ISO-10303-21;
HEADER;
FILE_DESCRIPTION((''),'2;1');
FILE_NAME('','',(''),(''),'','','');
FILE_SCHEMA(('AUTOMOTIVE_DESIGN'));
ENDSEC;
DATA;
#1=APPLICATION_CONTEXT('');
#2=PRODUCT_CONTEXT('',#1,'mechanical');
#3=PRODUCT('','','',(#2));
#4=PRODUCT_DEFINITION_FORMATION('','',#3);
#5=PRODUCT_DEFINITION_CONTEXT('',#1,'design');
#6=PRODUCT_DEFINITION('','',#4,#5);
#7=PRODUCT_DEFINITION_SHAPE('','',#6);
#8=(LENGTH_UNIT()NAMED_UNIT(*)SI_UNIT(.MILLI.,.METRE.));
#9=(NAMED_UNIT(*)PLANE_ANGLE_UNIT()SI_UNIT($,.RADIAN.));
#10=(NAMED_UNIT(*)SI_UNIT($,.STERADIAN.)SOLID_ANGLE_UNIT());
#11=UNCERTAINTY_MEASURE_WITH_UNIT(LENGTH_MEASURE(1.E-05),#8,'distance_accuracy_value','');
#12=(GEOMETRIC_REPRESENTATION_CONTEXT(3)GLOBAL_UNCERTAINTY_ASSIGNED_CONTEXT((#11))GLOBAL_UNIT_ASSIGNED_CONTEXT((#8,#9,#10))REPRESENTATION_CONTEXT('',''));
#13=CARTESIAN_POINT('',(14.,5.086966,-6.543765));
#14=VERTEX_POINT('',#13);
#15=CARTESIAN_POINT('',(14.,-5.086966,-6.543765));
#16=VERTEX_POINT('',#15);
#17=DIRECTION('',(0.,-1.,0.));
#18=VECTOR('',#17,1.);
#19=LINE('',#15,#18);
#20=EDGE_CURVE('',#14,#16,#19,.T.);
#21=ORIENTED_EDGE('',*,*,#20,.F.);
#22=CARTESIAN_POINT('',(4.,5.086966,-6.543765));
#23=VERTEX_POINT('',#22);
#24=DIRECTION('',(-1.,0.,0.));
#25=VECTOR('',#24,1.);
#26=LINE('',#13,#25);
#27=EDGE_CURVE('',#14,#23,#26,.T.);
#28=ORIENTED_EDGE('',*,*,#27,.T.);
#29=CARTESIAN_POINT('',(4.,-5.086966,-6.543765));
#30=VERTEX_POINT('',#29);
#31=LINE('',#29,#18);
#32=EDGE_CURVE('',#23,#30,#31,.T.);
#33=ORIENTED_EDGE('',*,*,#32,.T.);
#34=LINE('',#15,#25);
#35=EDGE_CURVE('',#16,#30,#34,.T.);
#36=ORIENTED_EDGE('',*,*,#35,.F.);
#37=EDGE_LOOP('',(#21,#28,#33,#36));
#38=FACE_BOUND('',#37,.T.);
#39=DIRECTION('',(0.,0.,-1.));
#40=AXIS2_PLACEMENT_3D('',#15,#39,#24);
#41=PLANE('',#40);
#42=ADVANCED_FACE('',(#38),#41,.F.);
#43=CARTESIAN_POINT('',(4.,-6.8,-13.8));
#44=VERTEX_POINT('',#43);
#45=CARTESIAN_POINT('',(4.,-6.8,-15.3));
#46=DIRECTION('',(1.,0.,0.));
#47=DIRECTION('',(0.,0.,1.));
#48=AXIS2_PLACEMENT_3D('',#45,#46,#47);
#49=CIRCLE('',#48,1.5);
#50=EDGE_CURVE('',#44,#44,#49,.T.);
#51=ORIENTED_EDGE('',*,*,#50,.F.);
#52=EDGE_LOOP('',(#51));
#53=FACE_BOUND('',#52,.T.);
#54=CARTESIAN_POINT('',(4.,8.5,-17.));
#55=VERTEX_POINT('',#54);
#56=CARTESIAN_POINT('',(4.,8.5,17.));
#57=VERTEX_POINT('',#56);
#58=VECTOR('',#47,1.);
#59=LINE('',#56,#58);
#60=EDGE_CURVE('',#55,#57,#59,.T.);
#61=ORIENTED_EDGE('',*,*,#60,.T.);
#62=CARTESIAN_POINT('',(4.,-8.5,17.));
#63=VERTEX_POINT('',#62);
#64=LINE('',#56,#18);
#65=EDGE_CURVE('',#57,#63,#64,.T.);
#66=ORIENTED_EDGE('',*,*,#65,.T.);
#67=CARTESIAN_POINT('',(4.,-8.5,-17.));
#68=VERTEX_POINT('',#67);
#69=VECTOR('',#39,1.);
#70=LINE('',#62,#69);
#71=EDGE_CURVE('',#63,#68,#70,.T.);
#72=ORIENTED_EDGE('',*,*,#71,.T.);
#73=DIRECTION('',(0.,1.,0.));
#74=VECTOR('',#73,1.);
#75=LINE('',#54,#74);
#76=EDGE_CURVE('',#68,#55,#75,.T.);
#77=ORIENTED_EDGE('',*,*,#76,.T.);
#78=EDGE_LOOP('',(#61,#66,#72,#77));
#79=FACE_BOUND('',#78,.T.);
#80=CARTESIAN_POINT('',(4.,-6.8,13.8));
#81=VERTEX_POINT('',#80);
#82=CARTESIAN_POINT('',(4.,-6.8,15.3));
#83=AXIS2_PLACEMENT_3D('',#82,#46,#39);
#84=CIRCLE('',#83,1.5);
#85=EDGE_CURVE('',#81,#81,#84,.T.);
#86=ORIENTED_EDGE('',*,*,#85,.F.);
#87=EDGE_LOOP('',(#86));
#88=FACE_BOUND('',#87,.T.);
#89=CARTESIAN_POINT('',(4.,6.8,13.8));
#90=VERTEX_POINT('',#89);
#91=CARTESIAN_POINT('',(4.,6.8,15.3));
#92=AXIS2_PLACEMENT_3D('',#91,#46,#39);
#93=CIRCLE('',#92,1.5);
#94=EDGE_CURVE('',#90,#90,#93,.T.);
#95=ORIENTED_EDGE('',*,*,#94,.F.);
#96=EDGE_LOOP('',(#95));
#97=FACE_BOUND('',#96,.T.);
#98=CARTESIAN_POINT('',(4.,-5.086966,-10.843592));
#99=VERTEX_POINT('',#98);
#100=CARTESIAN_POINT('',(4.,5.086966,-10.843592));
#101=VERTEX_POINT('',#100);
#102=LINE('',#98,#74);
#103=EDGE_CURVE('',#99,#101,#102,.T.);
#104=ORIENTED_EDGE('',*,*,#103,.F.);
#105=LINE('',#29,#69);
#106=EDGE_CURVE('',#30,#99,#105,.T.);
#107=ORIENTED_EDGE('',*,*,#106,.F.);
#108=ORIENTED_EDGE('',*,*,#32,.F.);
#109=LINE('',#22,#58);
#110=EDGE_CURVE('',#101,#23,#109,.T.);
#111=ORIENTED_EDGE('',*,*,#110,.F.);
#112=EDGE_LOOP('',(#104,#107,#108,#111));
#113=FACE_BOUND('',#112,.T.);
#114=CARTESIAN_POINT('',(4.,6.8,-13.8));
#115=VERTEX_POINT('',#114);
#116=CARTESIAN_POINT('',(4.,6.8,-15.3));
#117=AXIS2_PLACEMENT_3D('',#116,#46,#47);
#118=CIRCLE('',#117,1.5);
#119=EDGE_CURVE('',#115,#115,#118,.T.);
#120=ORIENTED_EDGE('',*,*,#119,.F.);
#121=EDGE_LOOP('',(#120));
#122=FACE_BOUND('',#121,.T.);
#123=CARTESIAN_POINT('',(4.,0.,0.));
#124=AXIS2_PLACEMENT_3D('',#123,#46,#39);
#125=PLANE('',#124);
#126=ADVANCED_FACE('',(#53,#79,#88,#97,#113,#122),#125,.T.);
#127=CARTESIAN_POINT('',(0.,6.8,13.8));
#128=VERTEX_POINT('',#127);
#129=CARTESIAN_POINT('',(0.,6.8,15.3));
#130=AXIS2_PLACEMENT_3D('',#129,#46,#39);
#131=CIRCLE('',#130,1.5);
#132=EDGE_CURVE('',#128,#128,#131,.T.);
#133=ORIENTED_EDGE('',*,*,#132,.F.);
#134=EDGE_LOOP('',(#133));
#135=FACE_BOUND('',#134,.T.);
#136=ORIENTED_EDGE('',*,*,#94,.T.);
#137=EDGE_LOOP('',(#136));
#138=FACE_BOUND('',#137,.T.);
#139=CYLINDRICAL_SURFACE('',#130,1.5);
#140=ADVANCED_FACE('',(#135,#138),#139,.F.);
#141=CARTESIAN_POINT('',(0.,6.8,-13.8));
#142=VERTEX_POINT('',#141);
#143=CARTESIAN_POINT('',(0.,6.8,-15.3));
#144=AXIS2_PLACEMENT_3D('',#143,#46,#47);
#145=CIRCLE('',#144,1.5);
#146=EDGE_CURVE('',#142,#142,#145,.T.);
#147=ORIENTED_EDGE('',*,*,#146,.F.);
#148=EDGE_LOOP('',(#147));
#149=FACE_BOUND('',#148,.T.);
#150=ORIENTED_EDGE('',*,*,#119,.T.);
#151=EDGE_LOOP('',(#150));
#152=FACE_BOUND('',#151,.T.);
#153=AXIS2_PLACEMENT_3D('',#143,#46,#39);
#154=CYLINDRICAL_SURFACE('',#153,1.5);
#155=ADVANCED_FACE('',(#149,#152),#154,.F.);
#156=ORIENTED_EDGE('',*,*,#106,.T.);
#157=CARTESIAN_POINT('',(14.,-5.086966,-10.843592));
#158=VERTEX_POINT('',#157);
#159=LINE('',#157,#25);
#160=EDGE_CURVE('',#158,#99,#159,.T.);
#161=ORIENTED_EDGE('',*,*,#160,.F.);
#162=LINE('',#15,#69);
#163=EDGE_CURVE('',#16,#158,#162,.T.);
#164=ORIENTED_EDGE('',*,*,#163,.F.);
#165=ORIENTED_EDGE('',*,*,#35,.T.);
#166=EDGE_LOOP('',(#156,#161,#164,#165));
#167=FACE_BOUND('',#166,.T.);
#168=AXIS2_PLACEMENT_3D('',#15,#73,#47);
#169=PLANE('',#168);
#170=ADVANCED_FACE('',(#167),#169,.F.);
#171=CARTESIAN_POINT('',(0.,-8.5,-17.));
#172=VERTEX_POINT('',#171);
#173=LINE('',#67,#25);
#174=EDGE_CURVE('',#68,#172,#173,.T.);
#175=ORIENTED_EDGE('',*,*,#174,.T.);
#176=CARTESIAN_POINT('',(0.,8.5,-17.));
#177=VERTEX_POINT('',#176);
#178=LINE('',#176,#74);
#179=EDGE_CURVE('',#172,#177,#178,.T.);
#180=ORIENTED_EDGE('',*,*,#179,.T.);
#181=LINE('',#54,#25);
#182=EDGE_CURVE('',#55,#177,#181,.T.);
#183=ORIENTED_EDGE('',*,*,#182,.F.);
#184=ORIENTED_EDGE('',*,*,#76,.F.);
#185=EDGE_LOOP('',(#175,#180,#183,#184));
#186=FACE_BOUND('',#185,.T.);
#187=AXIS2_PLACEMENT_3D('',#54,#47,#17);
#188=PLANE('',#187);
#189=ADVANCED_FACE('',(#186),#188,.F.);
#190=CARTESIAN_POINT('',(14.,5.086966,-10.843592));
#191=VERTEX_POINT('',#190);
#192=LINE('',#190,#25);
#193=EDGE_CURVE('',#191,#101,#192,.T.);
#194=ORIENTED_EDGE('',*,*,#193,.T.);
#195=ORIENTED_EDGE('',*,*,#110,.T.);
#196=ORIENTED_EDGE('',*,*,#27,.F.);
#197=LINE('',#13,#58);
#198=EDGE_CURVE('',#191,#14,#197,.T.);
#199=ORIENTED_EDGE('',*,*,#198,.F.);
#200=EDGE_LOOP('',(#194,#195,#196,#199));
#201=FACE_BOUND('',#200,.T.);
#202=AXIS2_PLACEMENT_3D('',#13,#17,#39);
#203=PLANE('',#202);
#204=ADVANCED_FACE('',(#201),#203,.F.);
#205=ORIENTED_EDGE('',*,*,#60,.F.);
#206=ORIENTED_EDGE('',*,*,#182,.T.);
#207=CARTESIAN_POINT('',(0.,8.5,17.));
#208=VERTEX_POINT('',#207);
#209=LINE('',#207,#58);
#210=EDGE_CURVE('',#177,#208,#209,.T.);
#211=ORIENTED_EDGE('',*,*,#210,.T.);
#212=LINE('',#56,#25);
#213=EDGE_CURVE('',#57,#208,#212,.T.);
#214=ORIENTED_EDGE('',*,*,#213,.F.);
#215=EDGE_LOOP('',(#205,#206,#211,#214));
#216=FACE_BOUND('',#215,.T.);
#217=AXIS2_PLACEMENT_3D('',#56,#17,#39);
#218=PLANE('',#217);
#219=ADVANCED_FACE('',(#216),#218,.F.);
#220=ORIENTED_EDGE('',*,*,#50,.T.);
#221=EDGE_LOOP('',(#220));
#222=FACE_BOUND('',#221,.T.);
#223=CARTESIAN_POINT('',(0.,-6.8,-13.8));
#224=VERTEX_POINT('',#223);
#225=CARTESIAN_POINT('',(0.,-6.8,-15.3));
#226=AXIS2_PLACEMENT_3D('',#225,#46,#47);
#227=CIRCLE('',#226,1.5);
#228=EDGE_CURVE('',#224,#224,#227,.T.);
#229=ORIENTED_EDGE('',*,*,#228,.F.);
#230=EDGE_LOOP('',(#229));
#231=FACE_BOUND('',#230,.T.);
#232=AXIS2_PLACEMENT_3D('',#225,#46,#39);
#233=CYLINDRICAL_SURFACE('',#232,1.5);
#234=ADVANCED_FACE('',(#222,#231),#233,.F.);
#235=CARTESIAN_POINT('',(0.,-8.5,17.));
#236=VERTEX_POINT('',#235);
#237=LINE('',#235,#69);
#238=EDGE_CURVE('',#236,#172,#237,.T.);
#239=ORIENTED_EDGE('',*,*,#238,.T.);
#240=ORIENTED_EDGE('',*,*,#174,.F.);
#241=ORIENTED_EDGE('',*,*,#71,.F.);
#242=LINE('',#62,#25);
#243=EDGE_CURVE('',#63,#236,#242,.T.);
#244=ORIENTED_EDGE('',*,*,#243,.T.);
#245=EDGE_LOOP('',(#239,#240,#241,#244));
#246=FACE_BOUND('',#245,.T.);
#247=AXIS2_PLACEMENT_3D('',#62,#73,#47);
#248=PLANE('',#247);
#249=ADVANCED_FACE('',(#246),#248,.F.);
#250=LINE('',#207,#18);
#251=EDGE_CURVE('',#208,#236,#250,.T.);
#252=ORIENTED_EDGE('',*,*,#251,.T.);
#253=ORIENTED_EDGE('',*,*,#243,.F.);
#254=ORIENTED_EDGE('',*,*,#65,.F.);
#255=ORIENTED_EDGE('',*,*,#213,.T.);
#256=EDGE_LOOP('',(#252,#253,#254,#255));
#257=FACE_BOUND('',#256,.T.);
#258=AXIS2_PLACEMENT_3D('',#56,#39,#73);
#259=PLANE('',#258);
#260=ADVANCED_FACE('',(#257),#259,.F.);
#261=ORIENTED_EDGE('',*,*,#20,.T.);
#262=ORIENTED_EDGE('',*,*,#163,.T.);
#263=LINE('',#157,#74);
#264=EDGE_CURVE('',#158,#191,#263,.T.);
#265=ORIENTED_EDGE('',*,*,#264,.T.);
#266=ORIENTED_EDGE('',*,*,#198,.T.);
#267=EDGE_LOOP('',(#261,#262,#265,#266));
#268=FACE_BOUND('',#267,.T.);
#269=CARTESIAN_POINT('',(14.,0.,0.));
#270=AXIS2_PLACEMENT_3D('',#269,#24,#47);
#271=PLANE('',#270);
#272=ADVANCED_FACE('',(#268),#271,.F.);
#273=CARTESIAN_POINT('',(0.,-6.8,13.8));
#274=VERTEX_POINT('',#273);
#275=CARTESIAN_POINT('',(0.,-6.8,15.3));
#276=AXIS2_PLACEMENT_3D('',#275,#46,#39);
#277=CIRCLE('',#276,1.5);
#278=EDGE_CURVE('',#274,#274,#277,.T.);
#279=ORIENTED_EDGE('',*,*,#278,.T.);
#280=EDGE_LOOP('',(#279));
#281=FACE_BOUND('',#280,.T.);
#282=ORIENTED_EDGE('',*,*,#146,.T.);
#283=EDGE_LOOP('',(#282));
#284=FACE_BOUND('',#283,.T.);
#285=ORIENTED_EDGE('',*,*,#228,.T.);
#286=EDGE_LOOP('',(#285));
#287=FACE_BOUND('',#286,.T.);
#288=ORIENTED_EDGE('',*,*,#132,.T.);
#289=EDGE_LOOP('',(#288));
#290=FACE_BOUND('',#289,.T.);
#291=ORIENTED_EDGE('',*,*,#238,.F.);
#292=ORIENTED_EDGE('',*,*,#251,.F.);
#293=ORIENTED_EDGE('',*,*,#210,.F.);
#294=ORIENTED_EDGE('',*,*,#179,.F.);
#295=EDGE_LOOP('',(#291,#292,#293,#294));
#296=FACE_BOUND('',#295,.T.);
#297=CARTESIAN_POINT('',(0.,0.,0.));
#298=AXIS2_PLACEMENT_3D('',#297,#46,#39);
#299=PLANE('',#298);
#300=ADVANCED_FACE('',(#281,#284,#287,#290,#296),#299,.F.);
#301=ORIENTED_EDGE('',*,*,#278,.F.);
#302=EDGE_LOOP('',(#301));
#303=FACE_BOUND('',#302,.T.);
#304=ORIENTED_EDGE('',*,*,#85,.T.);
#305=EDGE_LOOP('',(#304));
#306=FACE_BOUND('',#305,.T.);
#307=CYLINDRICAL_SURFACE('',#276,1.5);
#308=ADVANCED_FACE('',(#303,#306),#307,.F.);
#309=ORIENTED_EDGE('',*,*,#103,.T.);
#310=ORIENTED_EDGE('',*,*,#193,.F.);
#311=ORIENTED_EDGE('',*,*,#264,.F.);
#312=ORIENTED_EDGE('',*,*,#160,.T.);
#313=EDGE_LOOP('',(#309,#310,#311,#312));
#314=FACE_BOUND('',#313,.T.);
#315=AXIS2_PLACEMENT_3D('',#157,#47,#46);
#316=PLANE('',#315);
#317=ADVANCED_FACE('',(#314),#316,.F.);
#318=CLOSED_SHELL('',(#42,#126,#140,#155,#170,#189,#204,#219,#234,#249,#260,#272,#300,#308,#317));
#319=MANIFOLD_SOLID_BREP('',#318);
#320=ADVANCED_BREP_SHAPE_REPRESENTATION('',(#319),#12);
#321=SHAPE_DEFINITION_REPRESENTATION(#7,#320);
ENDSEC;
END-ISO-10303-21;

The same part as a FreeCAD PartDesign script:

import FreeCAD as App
import Part
import Sketcher

V = App.Vector
Q = App.Units.Quantity


def add_polygon(sketch, points):
    """Adds a closed chain of lines whose ends are joined by coincident constraints."""
    first, n = sketch.GeometryCount, len(points)
    for a, b in zip(points, points[1:] + points[:1]):
        sketch.addGeometry(Part.LineSegment(App.Vector(*a, 0), App.Vector(*b, 0)), False)
    for i in range(n):
        sketch.addConstraint(Sketcher.Constraint("Coincident", first + i, 2, first + (i + 1) % n, 1))

doc = App.newDocument("Part")
params = doc.addObject("Spreadsheet::Sheet", "Params")
for row, (alias, value) in enumerate([
    ("sketch1_width", "17 mm"),
    ("sketch1_height", "34 mm"),
    ("pad1_length", "4 mm"),
    ("sketch2_diameter", "3 mm"),
    ("pad2_length", "10 mm"),
], start=1):
    params.set(f"A{row}", alias)
    params.set(f"B{row}", "=" + value)
    params.setAlias(f"B{row}", alias)

body = doc.addObject("PartDesign::Body", "Body")

sketch1 = body.newObject("Sketcher::SketchObject", "Sketch")
sketch1.AttachmentSupport = (doc.getObject("YZ_Plane"), [""])
sketch1.MapMode = "FlatFace"
add_polygon(sketch1, [(8, 17), (-8, 17), (-8, -17), (8, -17)])
sketch1.addConstraint([
    Sketcher.Constraint("Horizontal", 0),
    Sketcher.Constraint("Vertical", 1),
    Sketcher.Constraint("Horizontal", 2),
    Sketcher.Constraint("Vertical", 3),
    Sketcher.Constraint("Symmetric", 0, 2, 2, 2, -1, 1),
    Sketcher.Constraint("DistanceX", 0, 2, 0, 1, Q("17 mm")),
    Sketcher.Constraint("DistanceY", 1, 2, 1, 1, Q("34 mm")),
])
sketch1.setExpression("Constraints[9]", "Params.sketch1_width")
sketch1.setExpression("Constraints[10]", "Params.sketch1_height")
pad1 = body.newObject("PartDesign::Pad", "Pad")
pad1.Profile = sketch1
pad1.setExpression("Length", "Params.pad1_length")

sketch2 = body.newObject("Sketcher::SketchObject", "Sketch001")
sketch2.AttachmentSupport = (doc.getObject("YZ_Plane"), [""])
sketch2.MapMode = "FlatFace"
sketch2.AttachmentOffset = App.Placement(V(0, 0, 4), App.Rotation())
sketch2.addGeometry([
    Part.Circle(V(6.8, 15.3, 0), V(0, 0, 1), 1.5),
    Part.Circle(V(-6.8, 15.3, 0), V(0, 0, 1), 1.5),
    Part.Circle(V(-6.8, -15.3, 0), V(0, 0, 1), 1.5),
    Part.Circle(V(6.8, -15.3, 0), V(0, 0, 1), 1.5),
], False)
sketch2.addConstraint([
    Sketcher.Constraint("Equal", 0, 1),
    Sketcher.Constraint("Equal", 1, 2),
    Sketcher.Constraint("Equal", 2, 3),
    Sketcher.Constraint("Symmetric", 0, 3, 2, 3, -1, 1),
    Sketcher.Constraint("Symmetric", 1, 3, 3, 3, -1, 1),
    Sketcher.Constraint("Symmetric", 0, 3, 1, 3, -2),
    Sketcher.Constraint("Diameter", 0, Q("3 mm")),
    Sketcher.Constraint("DistanceX", -1, 1, 0, 3, Q("6.8 mm")),
    Sketcher.Constraint("DistanceY", -1, 1, 0, 3, Q("15.3 mm")),
])
sketch2.setExpression("Constraints[6]", "Params.sketch2_diameter")
pocket1 = body.newObject("PartDesign::Pocket", "Pocket")
pocket1.Profile = sketch2
pocket1.Type = "ThroughAll"

sketch3 = body.newObject("Sketcher::SketchObject", "Sketch002")
sketch3.AttachmentSupport = (doc.getObject("YZ_Plane"), [""])
sketch3.MapMode = "FlatFace"
sketch3.AttachmentOffset = App.Placement(V(0, 0, 4), App.Rotation())
add_polygon(sketch3, [(5.1, -6.5), (-5.1, -6.5), (-5.1, -10.8), (5.1, -10.8)])
sketch3.addConstraint([
    Sketcher.Constraint("Horizontal", 0),
    Sketcher.Constraint("Vertical", 1),
    Sketcher.Constraint("Horizontal", 2),
    Sketcher.Constraint("Vertical", 3),
    Sketcher.Constraint("DistanceX", 0, 2, 0, 1, Q("10.173932 mm")),
    Sketcher.Constraint("DistanceY", 1, 2, 1, 1, Q("4.299827 mm")),
    Sketcher.Constraint("DistanceY", 1, 2, -1, 1, Q("10.843592 mm")),
    Sketcher.Constraint("DistanceX", 0, 2, -1, 1, Q("5.086966 mm")),
])
pad2 = body.newObject("PartDesign::Pad", "Pad001")
pad2.Profile = sketch3
pad2.setExpression("Length", "Params.pad2_length")

doc.recompute()
